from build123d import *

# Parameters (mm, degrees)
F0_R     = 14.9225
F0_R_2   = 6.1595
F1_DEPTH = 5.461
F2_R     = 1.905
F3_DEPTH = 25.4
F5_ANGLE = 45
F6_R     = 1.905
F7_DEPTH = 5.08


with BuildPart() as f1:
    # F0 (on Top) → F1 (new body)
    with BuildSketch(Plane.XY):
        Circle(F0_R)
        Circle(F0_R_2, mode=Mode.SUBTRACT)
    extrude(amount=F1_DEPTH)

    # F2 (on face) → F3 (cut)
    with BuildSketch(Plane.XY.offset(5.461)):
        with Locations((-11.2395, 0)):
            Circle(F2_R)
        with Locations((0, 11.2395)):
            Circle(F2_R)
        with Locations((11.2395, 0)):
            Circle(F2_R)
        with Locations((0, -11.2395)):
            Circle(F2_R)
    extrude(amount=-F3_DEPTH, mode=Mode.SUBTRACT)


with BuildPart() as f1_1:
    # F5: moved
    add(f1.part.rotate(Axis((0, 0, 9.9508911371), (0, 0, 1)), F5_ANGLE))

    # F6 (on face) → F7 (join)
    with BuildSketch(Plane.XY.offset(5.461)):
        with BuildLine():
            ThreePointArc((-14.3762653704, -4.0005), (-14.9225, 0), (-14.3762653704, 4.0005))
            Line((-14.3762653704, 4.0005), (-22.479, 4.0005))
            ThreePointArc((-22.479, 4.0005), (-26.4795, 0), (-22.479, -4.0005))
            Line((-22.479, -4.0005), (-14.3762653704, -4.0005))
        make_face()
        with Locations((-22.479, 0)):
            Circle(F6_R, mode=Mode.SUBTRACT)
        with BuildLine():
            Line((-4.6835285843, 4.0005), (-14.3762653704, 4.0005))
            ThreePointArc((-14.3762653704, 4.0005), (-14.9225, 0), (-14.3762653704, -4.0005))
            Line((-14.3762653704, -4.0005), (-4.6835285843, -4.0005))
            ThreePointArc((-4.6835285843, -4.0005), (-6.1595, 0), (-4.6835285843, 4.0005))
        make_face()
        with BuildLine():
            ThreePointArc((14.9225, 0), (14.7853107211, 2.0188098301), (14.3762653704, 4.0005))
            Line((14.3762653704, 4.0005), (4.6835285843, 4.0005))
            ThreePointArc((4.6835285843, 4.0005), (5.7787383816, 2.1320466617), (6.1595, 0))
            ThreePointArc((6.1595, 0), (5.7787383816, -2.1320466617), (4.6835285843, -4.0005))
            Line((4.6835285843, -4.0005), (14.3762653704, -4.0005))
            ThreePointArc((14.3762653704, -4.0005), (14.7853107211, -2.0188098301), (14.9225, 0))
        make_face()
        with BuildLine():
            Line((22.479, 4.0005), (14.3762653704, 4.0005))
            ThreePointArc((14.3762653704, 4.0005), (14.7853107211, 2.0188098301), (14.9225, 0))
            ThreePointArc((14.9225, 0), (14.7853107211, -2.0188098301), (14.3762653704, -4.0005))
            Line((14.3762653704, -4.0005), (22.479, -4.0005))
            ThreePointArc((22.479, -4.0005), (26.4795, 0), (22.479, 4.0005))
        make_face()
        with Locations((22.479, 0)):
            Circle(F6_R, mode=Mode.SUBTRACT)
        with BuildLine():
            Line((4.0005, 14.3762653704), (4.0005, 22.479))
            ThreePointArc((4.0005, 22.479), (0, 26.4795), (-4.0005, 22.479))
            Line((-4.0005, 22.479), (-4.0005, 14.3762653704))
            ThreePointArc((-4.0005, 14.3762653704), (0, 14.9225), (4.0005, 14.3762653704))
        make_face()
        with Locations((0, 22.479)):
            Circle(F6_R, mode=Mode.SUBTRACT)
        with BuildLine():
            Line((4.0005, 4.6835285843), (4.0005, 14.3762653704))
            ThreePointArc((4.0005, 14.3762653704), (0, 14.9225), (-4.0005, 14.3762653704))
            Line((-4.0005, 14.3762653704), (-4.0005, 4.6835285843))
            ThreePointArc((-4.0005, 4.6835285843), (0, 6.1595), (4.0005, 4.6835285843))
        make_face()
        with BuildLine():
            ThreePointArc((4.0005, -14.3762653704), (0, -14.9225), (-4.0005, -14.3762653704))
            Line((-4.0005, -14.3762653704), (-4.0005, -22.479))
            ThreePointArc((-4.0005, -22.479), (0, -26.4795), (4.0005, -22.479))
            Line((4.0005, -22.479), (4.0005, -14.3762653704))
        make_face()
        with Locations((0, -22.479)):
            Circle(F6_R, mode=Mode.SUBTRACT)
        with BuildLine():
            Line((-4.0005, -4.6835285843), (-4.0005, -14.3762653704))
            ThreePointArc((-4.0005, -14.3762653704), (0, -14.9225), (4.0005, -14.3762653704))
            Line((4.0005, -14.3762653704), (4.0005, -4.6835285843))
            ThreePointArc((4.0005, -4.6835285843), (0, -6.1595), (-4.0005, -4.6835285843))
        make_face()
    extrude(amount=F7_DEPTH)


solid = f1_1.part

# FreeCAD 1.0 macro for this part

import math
import FreeCAD as App
import Part
import Sketcher
from FreeCAD import Vector
Q = App.Units.Quantity

doc = App.newDocument("Part")
body = doc.addObject("PartDesign::Body", "Body")

# Sketch on XY plane
sketch1 = body.newObject("Sketcher::SketchObject", "Sketch")
sketch1.AttachmentSupport = (doc.getObject("XY_Plane"), [""])
sketch1.MapMode = "FlatFace"
sketch1.addGeometry([
    Part.Circle(Vector(0, 0, 0), Vector(0, 0, 1), 15),
    Part.Circle(Vector(0, 0, 0), Vector(0, 0, 1), 6),
], False)
sketch1.addConstraint([
    Sketcher.Constraint("Coincident", 0, 3, -1, 1),
    Sketcher.Constraint("Coincident", 1, 3, -1, 1),
    Sketcher.Constraint("Diameter", 0, Q("1.175 in")),
    Sketcher.Constraint("Diameter", 1, Q("0.485 in")),
])
pad1 = body.newObject("PartDesign::Pad", "Pad")
pad1.Profile = sketch1
pad1.Length = Q("0.215 in")

# Sketch on XY plane
sketch2 = body.newObject("Sketcher::SketchObject", "Sketch001")
sketch2.AttachmentSupport = (doc.getObject("XY_Plane"), [""])
sketch2.MapMode = "FlatFace"
sketch2.AttachmentOffset = App.Placement(Vector(0, 0, 0.215 * 25.4), App.Rotation())
sketch2.addGeometry([
    Part.Circle(Vector(-11.2, 0, 0), Vector(0, 0, 1), 1.9),
    Part.Circle(Vector(0, 11.2, 0), Vector(0, 0, 1), 1.9),
    Part.Circle(Vector(11.2, 0, 0), Vector(0, 0, 1), 1.9),
    Part.Circle(Vector(0, -11.2, 0), Vector(0, 0, 1), 1.9),
], False)
sketch2.addConstraint([
    Sketcher.Constraint("Equal", 0, 1),
    Sketcher.Constraint("Equal", 1, 2),
    Sketcher.Constraint("Equal", 2, 3),
    Sketcher.Constraint("Symmetric", 0, 3, 2, 3, -1, 1),
    Sketcher.Constraint("Symmetric", 1, 3, 3, 3, -1, 1),
    Sketcher.Constraint("PointOnObject", 0, 3, -1),
    Sketcher.Constraint("PointOnObject", 1, 3, -2),
    Sketcher.Constraint("Diameter", 0, Q("0.15 in")),
    Sketcher.Constraint("DistanceX", 0, 3, 2, 3, Q("0.885 in")),
    Sketcher.Constraint("DistanceY", 3, 3, 1, 3, Q("0.885 in")),
])
pocket1 = body.newObject("PartDesign::Pocket", "Pocket")
pocket1.Profile = sketch2
pocket1.Length = Q("1 in")
body2 = doc.addObject("PartDesign::Body", "Body001")
doc.recompute()

body.Placement = App.Placement(Vector(0, 0, 0), App.Rotation(Vector(0, 0, 1), 45))
boolean = body2.newObject("PartDesign::Boolean", "Boolean")
boolean.Type = "Fuse"
boolean.addObjects([body])

# Sketch on XY plane
sketch3 = body2.newObject("Sketcher::SketchObject", "Sketch002")
sketch3.AttachmentSupport = (doc.getObject("XY_Plane001"), [""])
sketch3.MapMode = "FlatFace"
sketch3.AttachmentOffset = App.Placement(Vector(0, 0, 0.215 * 25.4), App.Rotation())
sketch3.addGeometry([
    Part.LineSegment(Vector(-22.5, -4, 0), Vector(-4.7, -4, 0)),  # 0
    Part.ArcOfCircle(Part.Circle(Vector(0, 0, 0), Vector(0, 0, 1), 6.2), math.radians(139), math.radians(221)),  # 1
    Part.LineSegment(Vector(-4.7, 4, 0), Vector(-22.5, 4, 0)),  # 2
    Part.ArcOfCircle(Part.Circle(Vector(-22.5, 0, 0), Vector(0, 0, 1), 4), math.radians(90), math.radians(270)),  # 3
    Part.Circle(Vector(-22.5, 0, 0), Vector(0, 0, 1), 1.9),  # 4
    Part.ArcOfCircle(Part.Circle(Vector(0, 0, 0), Vector(0, 0, 1), 6.2), math.radians(0), math.radians(41)),  # 5
    Part.ArcOfCircle(Part.Circle(Vector(0, 0, 0), Vector(0, 0, 1), 6.2), math.radians(-41), math.radians(0)),  # 6
    Part.LineSegment(Vector(4.7, -4, 0), Vector(22.5, -4, 0)),  # 7
    Part.ArcOfCircle(Part.Circle(Vector(22.5, 0, 0), Vector(0, 0, 1), 4), math.radians(-90), math.radians(90)),  # 8
    Part.LineSegment(Vector(22.5, 4, 0), Vector(4.7, 4, 0)),  # 9
    Part.Circle(Vector(22.5, 0, 0), Vector(0, 0, 1), 1.9),  # 10
    Part.ArcOfCircle(Part.Circle(Vector(0, 22.5, 0), Vector(0, 0, 1), 4), math.radians(0), math.radians(180)),  # 11
    Part.LineSegment(Vector(-4, 22.5, 0), Vector(-4, 4.7, 0)),  # 12
    Part.ArcOfCircle(Part.Circle(Vector(0, 0, 0), Vector(0, 0, 1), 6.2), math.radians(49), math.radians(131)),  # 13
    Part.LineSegment(Vector(4, 4.7, 0), Vector(4, 22.5, 0)),  # 14
    Part.Circle(Vector(0, 22.5, 0), Vector(0, 0, 1), 1.9),  # 15
    Part.LineSegment(Vector(4, -22.5, 0), Vector(4, -4.7, 0)),  # 16
    Part.ArcOfCircle(Part.Circle(Vector(0, 0, 0), Vector(0, 0, 1), 6.2), math.radians(-131), math.radians(-49)),  # 17
    Part.LineSegment(Vector(-4, -4.7, 0), Vector(-4, -22.5, 0)),  # 18
    Part.ArcOfCircle(Part.Circle(Vector(0, -22.5, 0), Vector(0, 0, 1), 4), math.radians(180), math.radians(360)),  # 19
    Part.Circle(Vector(0, -22.5, 0), Vector(0, 0, 1), 1.9),  # 20
], False)
sketch3.addConstraint([
    Sketcher.Constraint("Coincident", 0, 2, 1, 2),
    Sketcher.Constraint("Coincident", 1, 1, 2, 1),
    Sketcher.Constraint("Tangent", 2, 2, 3, 1),
    Sketcher.Constraint("Tangent", 3, 2, 0, 1),
    Sketcher.Constraint("Tangent", 5, 1, 6, 2),
    Sketcher.Constraint("Coincident", 6, 1, 7, 1),
    Sketcher.Constraint("Tangent", 7, 2, 8, 1),
    Sketcher.Constraint("Tangent", 8, 2, 9, 1),
    Sketcher.Constraint("Coincident", 9, 2, 5, 2),
    Sketcher.Constraint("Tangent", 11, 2, 12, 1),
    Sketcher.Constraint("Coincident", 12, 2, 13, 2),
    Sketcher.Constraint("Coincident", 13, 1, 14, 1),
    Sketcher.Constraint("Tangent", 14, 2, 11, 1),
    Sketcher.Constraint("Coincident", 16, 2, 17, 2),
    Sketcher.Constraint("Coincident", 17, 1, 18, 1),
    Sketcher.Constraint("Tangent", 18, 2, 19, 1),
    Sketcher.Constraint("Tangent", 19, 2, 16, 1),
    Sketcher.Constraint("Horizontal", 0),
    Sketcher.Constraint("Horizontal", 2),
    Sketcher.Constraint("Horizontal", 7),
    Sketcher.Constraint("Horizontal", 9),
    Sketcher.Constraint("Vertical", 12),
    Sketcher.Constraint("Vertical", 14),
    Sketcher.Constraint("Vertical", 16),
    Sketcher.Constraint("Vertical", 18),
    Sketcher.Constraint("Coincident", 1, 3, -1, 1),
    Sketcher.Constraint("Coincident", 5, 3, -1, 1),
    Sketcher.Constraint("Coincident", 13, 3, -1, 1),
    Sketcher.Constraint("Coincident", 17, 3, -1, 1),
    Sketcher.Constraint("Coincident", 4, 3, 3, 3),
    Sketcher.Constraint("Coincident", 10, 3, 8, 3),
    Sketcher.Constraint("Coincident", 15, 3, 11, 3),
    Sketcher.Constraint("Coincident", 20, 3, 19, 3),
    Sketcher.Constraint("Equal", 1, 5),
    Sketcher.Constraint("Equal", 5, 6),
    Sketcher.Constraint("Equal", 3, 8),
    Sketcher.Constraint("Equal", 4, 10),
    Sketcher.Constraint("Equal", 8, 11),
    Sketcher.Constraint("Equal", 6, 13),
    Sketcher.Constraint("Equal", 10, 15),
    Sketcher.Constraint("Equal", 13, 17),
    Sketcher.Constraint("Equal", 11, 19),
    Sketcher.Constraint("Equal", 15, 20),
    Sketcher.Constraint("Symmetric", 3, 3, 8, 3, -1, 1),
    Sketcher.Constraint("Symmetric", 11, 3, 19, 3, -1, 1),
    Sketcher.Constraint("PointOnObject", 3, 3, -1),
    Sketcher.Constraint("PointOnObject", 11, 3, -2),
    Sketcher.Constraint("PointOnObject", 5, 1, -1),
    Sketcher.Constraint("Equal", 9, 12),
    Sketcher.Constraint("Diameter", 4, Q("0.15 in")),
    Sketcher.Constraint("Radius", 1, Q("0.2425 in")),
    Sketcher.Constraint("Radius", 3, Q("0.1575 in")),
    Sketcher.Constraint("DistanceX", 3, 3, 8, 3, Q("1.77 in")),
])
pad2 = body2.newObject("PartDesign::Pad", "Pad001")
pad2.Profile = sketch3
pad2.Length = Q("0.2 in")

doc.recompute()
